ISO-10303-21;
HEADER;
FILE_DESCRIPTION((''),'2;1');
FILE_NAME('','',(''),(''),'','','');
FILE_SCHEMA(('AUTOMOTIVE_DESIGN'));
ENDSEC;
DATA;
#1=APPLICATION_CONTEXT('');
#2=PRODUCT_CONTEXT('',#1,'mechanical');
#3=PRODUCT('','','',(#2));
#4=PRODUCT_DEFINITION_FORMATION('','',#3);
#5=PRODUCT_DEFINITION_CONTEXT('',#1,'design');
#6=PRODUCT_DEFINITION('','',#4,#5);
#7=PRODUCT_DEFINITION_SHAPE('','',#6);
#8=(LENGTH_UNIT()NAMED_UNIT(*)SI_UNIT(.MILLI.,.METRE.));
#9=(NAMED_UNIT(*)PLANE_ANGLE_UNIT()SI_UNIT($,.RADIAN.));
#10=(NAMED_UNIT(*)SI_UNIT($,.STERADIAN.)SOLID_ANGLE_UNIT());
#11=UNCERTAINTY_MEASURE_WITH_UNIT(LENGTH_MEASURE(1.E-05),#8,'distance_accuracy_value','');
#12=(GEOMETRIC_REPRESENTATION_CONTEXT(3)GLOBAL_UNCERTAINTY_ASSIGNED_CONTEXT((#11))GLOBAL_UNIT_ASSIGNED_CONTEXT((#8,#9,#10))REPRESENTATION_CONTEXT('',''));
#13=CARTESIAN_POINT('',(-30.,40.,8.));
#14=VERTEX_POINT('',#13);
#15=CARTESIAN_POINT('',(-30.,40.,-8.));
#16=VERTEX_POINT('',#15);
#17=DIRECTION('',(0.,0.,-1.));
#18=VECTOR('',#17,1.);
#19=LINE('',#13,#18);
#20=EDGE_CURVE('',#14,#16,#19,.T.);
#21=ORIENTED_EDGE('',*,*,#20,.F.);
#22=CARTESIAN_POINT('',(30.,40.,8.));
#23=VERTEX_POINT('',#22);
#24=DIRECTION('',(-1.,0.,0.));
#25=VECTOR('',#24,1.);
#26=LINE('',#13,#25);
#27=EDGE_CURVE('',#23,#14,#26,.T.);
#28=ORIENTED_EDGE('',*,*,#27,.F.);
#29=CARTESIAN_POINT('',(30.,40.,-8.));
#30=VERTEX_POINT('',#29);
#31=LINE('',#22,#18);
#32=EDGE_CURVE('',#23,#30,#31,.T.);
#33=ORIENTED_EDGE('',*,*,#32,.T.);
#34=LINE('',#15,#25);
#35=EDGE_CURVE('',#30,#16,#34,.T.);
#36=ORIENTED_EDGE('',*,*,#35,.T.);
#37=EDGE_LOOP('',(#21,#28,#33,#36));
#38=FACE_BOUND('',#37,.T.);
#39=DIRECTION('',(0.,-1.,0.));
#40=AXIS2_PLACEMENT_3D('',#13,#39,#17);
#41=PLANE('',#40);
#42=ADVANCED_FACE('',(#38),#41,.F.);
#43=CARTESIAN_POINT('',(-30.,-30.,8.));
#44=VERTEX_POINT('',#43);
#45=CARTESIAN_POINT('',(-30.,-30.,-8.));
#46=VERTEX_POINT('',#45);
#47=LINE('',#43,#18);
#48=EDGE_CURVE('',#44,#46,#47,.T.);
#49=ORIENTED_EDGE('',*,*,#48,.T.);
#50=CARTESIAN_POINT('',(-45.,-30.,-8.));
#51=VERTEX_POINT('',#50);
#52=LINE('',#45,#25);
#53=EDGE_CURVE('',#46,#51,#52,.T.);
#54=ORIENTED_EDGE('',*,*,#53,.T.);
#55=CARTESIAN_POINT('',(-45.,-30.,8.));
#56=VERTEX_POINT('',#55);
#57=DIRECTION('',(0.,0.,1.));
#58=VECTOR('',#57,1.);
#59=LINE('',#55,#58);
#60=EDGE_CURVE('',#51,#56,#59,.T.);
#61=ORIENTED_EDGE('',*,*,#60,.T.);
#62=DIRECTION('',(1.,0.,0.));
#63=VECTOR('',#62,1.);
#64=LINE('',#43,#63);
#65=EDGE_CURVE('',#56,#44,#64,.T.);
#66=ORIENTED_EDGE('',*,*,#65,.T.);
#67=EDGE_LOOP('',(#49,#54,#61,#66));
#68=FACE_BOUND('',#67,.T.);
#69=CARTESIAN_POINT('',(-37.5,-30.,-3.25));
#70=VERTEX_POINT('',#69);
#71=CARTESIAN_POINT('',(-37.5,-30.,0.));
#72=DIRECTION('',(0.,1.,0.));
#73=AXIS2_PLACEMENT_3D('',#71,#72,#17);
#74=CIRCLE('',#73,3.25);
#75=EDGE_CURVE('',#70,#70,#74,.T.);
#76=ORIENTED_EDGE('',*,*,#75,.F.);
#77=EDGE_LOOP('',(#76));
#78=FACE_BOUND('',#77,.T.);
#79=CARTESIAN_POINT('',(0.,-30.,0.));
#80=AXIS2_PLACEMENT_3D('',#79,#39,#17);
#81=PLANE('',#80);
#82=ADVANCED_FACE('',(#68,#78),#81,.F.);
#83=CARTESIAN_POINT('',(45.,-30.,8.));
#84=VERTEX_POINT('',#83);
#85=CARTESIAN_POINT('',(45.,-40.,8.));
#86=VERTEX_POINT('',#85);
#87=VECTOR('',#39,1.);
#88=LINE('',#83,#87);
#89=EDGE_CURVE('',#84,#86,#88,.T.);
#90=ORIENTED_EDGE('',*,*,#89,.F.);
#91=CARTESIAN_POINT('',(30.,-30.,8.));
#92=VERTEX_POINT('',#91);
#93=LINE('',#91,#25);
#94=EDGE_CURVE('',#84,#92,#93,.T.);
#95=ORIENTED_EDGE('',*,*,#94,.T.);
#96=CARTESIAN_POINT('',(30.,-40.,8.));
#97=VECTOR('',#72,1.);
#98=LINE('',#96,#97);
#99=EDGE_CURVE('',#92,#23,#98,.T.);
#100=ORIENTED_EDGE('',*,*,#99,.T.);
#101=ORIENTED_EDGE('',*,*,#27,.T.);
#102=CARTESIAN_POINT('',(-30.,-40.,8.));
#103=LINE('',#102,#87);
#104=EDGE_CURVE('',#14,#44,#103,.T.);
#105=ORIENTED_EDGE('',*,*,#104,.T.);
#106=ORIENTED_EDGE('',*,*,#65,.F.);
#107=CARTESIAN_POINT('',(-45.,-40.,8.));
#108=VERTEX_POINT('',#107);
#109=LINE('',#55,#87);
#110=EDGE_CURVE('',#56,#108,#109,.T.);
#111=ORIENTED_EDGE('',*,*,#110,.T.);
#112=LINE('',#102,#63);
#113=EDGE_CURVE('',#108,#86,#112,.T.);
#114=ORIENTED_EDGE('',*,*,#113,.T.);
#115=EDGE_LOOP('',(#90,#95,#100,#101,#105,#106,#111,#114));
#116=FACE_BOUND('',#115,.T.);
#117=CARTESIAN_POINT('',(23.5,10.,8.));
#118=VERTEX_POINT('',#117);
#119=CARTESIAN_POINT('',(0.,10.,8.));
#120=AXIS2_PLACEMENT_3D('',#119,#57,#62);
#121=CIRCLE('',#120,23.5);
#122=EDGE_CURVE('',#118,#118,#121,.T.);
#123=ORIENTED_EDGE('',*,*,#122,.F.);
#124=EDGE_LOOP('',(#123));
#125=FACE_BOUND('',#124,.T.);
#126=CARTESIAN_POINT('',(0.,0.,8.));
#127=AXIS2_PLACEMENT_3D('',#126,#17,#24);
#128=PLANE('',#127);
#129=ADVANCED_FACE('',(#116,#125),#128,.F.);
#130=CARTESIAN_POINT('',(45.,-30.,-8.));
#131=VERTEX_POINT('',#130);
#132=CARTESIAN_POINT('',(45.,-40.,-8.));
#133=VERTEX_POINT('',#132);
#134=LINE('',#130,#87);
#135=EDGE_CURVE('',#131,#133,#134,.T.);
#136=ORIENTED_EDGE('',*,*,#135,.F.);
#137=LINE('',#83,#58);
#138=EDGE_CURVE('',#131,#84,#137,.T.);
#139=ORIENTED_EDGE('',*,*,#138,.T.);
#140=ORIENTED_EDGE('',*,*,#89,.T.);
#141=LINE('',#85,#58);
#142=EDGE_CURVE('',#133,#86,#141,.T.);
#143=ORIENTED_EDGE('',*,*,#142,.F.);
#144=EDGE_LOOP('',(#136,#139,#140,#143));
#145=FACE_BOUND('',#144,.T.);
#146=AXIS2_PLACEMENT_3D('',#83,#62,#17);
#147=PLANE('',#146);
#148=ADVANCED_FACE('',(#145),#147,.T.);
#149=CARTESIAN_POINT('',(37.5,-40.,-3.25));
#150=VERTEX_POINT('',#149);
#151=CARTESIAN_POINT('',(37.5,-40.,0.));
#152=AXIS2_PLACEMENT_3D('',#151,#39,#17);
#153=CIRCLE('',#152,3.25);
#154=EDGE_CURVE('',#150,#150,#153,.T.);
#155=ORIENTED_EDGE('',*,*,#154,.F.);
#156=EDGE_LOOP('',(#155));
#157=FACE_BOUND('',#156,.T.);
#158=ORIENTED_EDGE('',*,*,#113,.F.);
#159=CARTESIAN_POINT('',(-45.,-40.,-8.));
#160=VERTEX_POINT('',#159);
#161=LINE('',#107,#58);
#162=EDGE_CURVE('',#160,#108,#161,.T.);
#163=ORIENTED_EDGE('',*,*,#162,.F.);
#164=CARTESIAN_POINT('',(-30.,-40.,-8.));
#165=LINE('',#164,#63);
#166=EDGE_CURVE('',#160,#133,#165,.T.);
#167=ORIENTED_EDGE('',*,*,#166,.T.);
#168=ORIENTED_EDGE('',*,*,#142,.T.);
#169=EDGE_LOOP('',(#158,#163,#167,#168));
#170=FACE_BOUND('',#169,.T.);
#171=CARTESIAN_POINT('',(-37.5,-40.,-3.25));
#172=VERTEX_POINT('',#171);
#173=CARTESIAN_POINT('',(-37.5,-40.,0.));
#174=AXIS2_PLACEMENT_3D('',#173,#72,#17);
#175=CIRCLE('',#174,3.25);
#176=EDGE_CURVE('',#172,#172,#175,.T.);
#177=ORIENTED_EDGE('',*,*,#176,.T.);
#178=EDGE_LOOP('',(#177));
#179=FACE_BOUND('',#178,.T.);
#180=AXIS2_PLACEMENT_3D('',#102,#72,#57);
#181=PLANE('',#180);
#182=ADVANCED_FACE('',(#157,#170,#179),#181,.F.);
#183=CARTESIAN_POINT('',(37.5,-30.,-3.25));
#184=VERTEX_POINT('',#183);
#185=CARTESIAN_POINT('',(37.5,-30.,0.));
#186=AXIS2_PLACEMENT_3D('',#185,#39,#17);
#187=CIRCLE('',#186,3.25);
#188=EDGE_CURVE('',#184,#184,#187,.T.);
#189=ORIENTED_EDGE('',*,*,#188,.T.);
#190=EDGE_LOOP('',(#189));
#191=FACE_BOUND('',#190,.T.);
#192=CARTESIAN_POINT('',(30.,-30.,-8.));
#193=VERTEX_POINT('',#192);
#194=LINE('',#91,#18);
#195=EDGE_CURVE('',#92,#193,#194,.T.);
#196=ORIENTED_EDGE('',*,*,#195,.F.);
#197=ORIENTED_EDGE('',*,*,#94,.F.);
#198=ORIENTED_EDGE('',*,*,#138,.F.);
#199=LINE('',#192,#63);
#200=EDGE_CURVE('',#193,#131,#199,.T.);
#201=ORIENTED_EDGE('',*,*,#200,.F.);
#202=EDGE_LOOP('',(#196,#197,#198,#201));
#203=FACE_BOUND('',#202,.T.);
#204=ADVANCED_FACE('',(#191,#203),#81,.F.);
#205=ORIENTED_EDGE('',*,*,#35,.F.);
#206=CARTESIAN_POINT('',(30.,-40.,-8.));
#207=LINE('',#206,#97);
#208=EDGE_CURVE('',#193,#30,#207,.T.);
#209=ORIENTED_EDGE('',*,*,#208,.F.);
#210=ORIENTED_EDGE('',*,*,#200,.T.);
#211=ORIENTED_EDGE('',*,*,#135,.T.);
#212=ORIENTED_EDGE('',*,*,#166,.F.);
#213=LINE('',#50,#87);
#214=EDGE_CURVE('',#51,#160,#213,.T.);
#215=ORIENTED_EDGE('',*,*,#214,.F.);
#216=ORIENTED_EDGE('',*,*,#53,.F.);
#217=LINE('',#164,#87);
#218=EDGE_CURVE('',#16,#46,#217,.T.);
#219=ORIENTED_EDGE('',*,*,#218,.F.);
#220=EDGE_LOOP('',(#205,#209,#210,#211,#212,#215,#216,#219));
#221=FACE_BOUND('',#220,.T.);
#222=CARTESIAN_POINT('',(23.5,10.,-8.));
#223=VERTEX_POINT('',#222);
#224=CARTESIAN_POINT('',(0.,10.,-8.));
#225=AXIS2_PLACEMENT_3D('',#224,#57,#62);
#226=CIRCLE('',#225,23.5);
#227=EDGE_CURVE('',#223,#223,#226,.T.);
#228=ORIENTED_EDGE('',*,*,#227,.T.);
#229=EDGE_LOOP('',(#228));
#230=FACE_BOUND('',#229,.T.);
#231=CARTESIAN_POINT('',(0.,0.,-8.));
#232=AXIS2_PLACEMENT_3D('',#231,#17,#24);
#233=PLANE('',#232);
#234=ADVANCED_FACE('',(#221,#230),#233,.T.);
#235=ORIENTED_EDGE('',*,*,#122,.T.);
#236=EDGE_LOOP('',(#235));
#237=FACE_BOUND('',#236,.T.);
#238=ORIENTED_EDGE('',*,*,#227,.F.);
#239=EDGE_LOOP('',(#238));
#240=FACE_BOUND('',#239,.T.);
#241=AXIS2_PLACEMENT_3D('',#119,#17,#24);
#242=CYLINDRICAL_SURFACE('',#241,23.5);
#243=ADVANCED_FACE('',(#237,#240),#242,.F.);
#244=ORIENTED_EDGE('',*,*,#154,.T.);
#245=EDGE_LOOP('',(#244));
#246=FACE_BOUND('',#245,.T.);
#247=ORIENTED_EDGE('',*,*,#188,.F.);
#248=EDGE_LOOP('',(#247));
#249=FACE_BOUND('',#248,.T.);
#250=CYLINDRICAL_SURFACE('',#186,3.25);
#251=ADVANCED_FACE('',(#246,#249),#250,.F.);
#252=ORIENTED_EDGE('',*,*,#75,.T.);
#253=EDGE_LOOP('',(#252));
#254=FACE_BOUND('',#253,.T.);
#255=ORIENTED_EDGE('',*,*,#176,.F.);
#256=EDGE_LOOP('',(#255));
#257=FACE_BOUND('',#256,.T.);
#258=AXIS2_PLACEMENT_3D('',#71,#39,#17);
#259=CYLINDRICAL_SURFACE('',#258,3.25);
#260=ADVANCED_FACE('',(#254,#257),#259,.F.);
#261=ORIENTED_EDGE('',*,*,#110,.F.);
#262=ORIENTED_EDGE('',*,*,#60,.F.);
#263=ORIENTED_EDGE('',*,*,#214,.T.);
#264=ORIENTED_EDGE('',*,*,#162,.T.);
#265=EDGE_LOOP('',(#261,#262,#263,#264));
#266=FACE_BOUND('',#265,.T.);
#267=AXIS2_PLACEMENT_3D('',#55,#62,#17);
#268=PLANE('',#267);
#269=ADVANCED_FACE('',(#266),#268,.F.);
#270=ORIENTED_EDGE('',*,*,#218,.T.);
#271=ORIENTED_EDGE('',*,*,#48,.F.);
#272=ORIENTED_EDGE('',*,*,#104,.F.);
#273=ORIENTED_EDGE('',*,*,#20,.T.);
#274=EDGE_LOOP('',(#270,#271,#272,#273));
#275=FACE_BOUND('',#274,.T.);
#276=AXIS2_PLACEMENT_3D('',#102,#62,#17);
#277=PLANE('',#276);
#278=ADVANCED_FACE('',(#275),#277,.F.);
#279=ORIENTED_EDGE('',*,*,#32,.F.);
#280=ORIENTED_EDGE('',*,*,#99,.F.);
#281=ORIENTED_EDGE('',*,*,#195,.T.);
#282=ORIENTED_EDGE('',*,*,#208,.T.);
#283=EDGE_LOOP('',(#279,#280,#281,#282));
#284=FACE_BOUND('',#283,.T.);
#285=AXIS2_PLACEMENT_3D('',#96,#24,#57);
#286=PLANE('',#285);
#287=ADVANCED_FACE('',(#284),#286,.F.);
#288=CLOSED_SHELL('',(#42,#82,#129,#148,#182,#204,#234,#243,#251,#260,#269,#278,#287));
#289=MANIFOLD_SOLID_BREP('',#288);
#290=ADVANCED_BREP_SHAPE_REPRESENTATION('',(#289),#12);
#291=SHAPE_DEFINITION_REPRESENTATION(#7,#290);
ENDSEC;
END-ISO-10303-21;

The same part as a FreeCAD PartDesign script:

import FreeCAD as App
import Part
import Sketcher
from FreeCAD import Vector


def add_polygon(sketch, points):
    """Adds a closed chain of lines whose ends are joined by coincident constraints."""
    first, n = sketch.GeometryCount, len(points)
    for a, b in zip(points, points[1:] + points[:1]):
        sketch.addGeometry(Part.LineSegment(App.Vector(*a, 0), App.Vector(*b, 0)), False)
    for i in range(n):
        sketch.addConstraint(Sketcher.Constraint("Coincident", first + i, 2, first + (i + 1) % n, 1))

doc = App.newDocument("Part")
body = doc.addObject("PartDesign::Body", "Body")

# Sketch on XY plane
sketch1 = body.newObject("Sketcher::SketchObject", "Sketch")
sketch1.AttachmentSupport = (doc.getObject("XY_Plane"), [""])
sketch1.MapMode = "FlatFace"
add_polygon(sketch1, [(-30, 40), (-30, -40), (30, -40), (30, 40)])  # lines 0-3
sketch1.addGeometry(Part.Circle(Vector(0, 10, 0), Vector(0, 0, 1), 24), False)  # 4
sketch1.addConstraint(Sketcher.Constraint("Vertical", 0))
sketch1.addConstraint(Sketcher.Constraint("Horizontal", 1))
sketch1.addConstraint(Sketcher.Constraint("Vertical", 2))
sketch1.addConstraint(Sketcher.Constraint("Horizontal", 3))
sketch1.addConstraint(Sketcher.Constraint("Symmetric", 0, 2, 2, 2, -1, 1))
sketch1.addConstraint(Sketcher.Constraint("PointOnObject", 4, 3, -2))
sketch1.addConstraint(Sketcher.Constraint("Diameter", 4, 47.0))
sketch1.addConstraint(Sketcher.Constraint("DistanceX", 1, 1, 1, 2, 60.0))
sketch1.addConstraint(Sketcher.Constraint("DistanceY", 0, 2, 0, 1, 80.0))
sketch1.addConstraint(Sketcher.Constraint("DistanceY", -1, 1, 4, 3, 10.0))
pad1 = body.newObject("PartDesign::Pad", "Pad")
pad1.Profile = sketch1
pad1.Length = 16
pad1.Midplane = True

# Sketch on XZ plane
sketch2 = body.newObject("Sketcher::SketchObject", "Sketch001")
sketch2.AttachmentSupport = (doc.getObject("XZ_Plane"), [""])
sketch2.MapMode = "FlatFace"
sketch2.AttachmentOffset = App.Placement(Vector(0, 0, 40), App.Rotation())
add_polygon(sketch2, [(30, 8), (30, -8), (45, -8), (45, 8)])  # lines 0-3
sketch2.addGeometry(Part.Circle(Vector(37.5, 0, 0), Vector(0, 0, 1), 3.2), False)  # 4
sketch2.addConstraint(Sketcher.Constraint("Vertical", 0))
sketch2.addConstraint(Sketcher.Constraint("Horizontal", 1))
sketch2.addConstraint(Sketcher.Constraint("Vertical", 2))
sketch2.addConstraint(Sketcher.Constraint("Horizontal", 3))
sketch2.addConstraint(Sketcher.Constraint("PointOnObject", 4, 3, -1))
sketch2.addConstraint(Sketcher.Constraint("Diameter", 4, 6.5))
sketch2.addConstraint(Sketcher.Constraint("DistanceX", 1, 1, 1, 2, 15.0))
sketch2.addConstraint(Sketcher.Constraint("DistanceY", 0, 2, 0, 1, 16.0))
sketch2.addConstraint(Sketcher.Constraint("DistanceX", -1, 1, 0, 2, 30.0))
sketch2.addConstraint(Sketcher.Constraint("DistanceY", 0, 2, -1, 1, 8.0))
sketch2.addConstraint(Sketcher.Constraint("DistanceX", -1, 1, 4, 3, 37.5))
pad2 = body.newObject("PartDesign::Pad", "Pad001")
pad2.Profile = sketch2
pad2.Length = 10
pad2.Reversed = True
doc.recompute()

mirrored = body.newObject("PartDesign::Mirrored", "Mirrored")
mirrored.Originals = [pad2]
mirrored.MirrorPlane = (doc.getObject("YZ_Plane"), [""])
body.Tip = mirrored

doc.recompute()
